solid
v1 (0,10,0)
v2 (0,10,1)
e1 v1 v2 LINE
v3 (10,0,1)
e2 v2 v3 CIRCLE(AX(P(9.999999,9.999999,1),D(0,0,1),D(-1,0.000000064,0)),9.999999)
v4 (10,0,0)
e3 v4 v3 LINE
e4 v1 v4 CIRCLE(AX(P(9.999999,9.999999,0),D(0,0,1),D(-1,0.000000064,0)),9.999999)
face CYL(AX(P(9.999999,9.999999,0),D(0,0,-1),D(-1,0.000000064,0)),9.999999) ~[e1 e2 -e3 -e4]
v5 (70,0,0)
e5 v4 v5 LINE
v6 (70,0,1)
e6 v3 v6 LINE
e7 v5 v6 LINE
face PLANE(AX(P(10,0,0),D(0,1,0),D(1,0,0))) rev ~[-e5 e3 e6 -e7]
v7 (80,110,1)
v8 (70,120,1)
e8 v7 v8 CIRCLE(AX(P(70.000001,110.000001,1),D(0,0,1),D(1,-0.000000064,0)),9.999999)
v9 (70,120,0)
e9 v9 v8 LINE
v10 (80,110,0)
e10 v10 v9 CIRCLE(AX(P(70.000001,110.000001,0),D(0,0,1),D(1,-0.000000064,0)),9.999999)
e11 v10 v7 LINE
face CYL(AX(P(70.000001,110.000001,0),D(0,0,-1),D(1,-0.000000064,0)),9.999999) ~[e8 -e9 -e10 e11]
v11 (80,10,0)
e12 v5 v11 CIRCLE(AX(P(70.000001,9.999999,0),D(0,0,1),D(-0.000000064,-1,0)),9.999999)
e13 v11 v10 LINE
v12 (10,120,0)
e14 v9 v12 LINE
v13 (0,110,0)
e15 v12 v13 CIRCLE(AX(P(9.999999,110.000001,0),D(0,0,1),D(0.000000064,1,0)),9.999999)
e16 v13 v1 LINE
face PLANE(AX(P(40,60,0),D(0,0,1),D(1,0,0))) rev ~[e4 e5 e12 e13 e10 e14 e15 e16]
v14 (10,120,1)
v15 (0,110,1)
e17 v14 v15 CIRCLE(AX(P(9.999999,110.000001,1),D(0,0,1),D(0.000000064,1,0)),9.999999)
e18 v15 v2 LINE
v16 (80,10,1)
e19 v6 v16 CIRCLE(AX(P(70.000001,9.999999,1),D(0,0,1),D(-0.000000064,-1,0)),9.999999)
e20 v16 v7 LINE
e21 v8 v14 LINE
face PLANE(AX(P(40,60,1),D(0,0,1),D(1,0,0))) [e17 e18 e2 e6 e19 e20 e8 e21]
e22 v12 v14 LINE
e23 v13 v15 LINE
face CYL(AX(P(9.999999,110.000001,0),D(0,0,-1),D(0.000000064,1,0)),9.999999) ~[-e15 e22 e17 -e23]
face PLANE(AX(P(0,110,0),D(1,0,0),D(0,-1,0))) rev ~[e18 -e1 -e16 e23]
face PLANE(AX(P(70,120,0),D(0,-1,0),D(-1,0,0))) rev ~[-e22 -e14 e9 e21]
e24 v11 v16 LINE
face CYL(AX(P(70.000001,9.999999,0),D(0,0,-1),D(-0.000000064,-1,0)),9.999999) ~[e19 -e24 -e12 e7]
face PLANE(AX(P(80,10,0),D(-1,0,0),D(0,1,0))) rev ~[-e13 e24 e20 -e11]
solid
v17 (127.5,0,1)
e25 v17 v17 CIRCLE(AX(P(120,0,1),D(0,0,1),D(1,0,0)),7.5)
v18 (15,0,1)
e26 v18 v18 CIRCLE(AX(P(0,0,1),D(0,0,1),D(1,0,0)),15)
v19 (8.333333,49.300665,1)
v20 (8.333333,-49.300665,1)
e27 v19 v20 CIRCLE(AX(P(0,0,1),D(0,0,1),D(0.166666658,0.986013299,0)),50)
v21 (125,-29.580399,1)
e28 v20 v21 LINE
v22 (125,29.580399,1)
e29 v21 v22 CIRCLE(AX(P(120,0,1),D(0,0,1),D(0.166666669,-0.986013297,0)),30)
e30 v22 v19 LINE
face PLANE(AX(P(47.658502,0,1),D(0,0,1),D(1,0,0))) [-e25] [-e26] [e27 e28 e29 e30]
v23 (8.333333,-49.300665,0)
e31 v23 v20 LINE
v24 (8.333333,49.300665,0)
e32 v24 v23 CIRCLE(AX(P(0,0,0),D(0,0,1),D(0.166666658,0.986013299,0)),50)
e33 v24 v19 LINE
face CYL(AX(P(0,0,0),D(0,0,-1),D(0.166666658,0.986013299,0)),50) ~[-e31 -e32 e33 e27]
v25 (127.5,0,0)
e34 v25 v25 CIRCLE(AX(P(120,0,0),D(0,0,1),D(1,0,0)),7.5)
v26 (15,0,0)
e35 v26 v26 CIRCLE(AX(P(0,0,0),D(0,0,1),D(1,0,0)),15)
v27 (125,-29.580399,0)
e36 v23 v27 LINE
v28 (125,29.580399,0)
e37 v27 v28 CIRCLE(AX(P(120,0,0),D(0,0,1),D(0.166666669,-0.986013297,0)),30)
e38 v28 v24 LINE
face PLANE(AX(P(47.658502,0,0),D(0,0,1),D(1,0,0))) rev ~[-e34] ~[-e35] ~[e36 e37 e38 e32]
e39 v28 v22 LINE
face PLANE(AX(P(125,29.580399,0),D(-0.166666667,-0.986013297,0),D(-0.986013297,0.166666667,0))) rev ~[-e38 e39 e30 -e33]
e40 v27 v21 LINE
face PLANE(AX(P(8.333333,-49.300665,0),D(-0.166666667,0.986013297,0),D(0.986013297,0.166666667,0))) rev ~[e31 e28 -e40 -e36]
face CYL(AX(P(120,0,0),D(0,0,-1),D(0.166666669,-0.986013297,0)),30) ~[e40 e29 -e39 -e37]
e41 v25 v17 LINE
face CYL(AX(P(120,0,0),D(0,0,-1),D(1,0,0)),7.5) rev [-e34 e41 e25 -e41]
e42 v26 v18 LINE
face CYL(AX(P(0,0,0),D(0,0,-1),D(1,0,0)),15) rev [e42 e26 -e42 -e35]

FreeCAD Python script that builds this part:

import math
import FreeCAD as App
import Part
import Sketcher

doc = App.newDocument("Part")
params = doc.addObject("Spreadsheet::Sheet", "Params")
for row, (alias, value) in enumerate([
    ("sketch1_radius", "9.999999 mm"),
    ("sketch1_width", "60 mm"),
    ("sketch1_height", "100 mm"),
    ("pad1_length", "1 mm"),
    ("sketch2_diameter", "30 mm"),
    ("sketch2_diameter2", "15 mm"),
    ("sketch2_radius", "50 mm"),
    ("sketch2_radius2", "30 mm"),
    ("pad2_length", "1 mm"),
], start=1):
    params.set(f"A{row}", alias)
    params.set(f"B{row}", "=" + value)
    params.setAlias(f"B{row}", alias)

body = doc.addObject("PartDesign::Body", "Body")

# Sketch on XY plane
sketch1 = body.newObject("Sketcher::SketchObject", "Sketch")
sketch1.AttachmentSupport = (doc.getObject("XY_Plane"), [""])
sketch1.MapMode = "FlatFace"
sketch1.addGeometry([
    Part.ArcOfCircle(Part.Circle(App.Vector(9.999999, 9.999999, 0), App.Vector(0, 0, 1), 9.999999), math.radians(179.999996), math.radians(270.000004)),  # 0
    Part.LineSegment(App.Vector(10, 0, 0), App.Vector(70, 0, 0)),  # 1
    Part.ArcOfCircle(Part.Circle(App.Vector(70.000001, 9.999999, 0), App.Vector(0, 0, 1), 9.999999), math.radians(-90.000004), math.radians(0.000004)),  # 2
    Part.LineSegment(App.Vector(80, 10, 0), App.Vector(80, 110, 0)),  # 3
    Part.ArcOfCircle(Part.Circle(App.Vector(70.000001, 110.000001, 0), App.Vector(0, 0, 1), 9.999999), math.radians(-0.000004), math.radians(90.000004)),  # 4
    Part.LineSegment(App.Vector(70, 120, 0), App.Vector(10, 120, 0)),  # 5
    Part.ArcOfCircle(Part.Circle(App.Vector(9.999999, 110.000001, 0), App.Vector(0, 0, 1), 9.999999), math.radians(89.999996), math.radians(180.000004)),  # 6
    Part.LineSegment(App.Vector(0, 110, 0), App.Vector(0, 10, 0)),  # 7
], False)
sketch1.addConstraint([
    Sketcher.Constraint("Tangent", 0, 2, 1, 1),
    Sketcher.Constraint("Tangent", 1, 2, 2, 1),
    Sketcher.Constraint("Tangent", 2, 2, 3, 1),
    Sketcher.Constraint("Tangent", 3, 2, 4, 1),
    Sketcher.Constraint("Tangent", 4, 2, 5, 1),
    Sketcher.Constraint("Tangent", 5, 2, 6, 1),
    Sketcher.Constraint("Tangent", 6, 2, 7, 1),
    Sketcher.Constraint("Tangent", 7, 2, 0, 1),
    Sketcher.Constraint("Horizontal", 1),
    Sketcher.Constraint("Vertical", 3),
    Sketcher.Constraint("Horizontal", 5),
    Sketcher.Constraint("Vertical", 7),
    Sketcher.Constraint("Equal", 0, 2),
    Sketcher.Constraint("Equal", 2, 4),
    Sketcher.Constraint("Equal", 4, 6),
    Sketcher.Constraint("PointOnObject", 0, 2, -1),
    Sketcher.Constraint("PointOnObject", 6, 2, -2),
    Sketcher.Constraint("Radius", 0, 9.999999),
    Sketcher.Constraint("DistanceX", 1, 1, 1, 2, 60.0),
    Sketcher.Constraint("DistanceY", 3, 1, 3, 2, 100.0),
])
sketch1.setExpression("Constraints[17]", "Params.sketch1_radius")
sketch1.setExpression("Constraints[18]", "Params.sketch1_width")
sketch1.setExpression("Constraints[19]", "Params.sketch1_height")
pad1 = body.newObject("PartDesign::Pad", "Pad")
pad1.Profile = sketch1
pad1.setExpression("Length", "Params.pad1_length")
body2 = doc.addObject("PartDesign::Body", "Body001")

# Sketch on XY plane
sketch2 = body2.newObject("Sketcher::SketchObject", "Sketch001")
sketch2.AttachmentSupport = (doc.getObject("XY_Plane001"), [""])
sketch2.MapMode = "FlatFace"
sketch2.addGeometry([
    Part.LineSegment(App.Vector(125, 29.580399, 0), App.Vector(8.333333, 49.300665, 0)),  # 0
    Part.ArcOfCircle(Part.Circle(App.Vector(0, 0, 0), App.Vector(0, 0, 1), 50), math.radians(80.405932), math.radians(279.594068)),  # 1
    Part.LineSegment(App.Vector(8.333333, -49.300665, 0), App.Vector(125, -29.580399, 0)),  # 2
    Part.ArcOfCircle(Part.Circle(App.Vector(120, 0, 0), App.Vector(0, 0, 1), 30), math.radians(-80.405932), math.radians(80.405932)),  # 3
    Part.Circle(App.Vector(0, 0, 0), App.Vector(0, 0, 1), 15),  # 4
    Part.Circle(App.Vector(120, 0, 0), App.Vector(0, 0, 1), 7.5),  # 5
], False)
sketch2.addConstraint([
    Sketcher.Constraint("Tangent", 0, 2, 1, 1),
    Sketcher.Constraint("Tangent", 1, 2, 2, 1),
    Sketcher.Constraint("Tangent", 2, 2, 3, 1),
    Sketcher.Constraint("Tangent", 3, 2, 0, 1),
    Sketcher.Constraint("Coincident", 1, 3, -1, 1),
    Sketcher.Constraint("Coincident", 4, 3, -1, 1),
    Sketcher.Constraint("Coincident", 5, 3, 3, 3),
    Sketcher.Constraint("PointOnObject", 3, 3, -1),
    Sketcher.Constraint("Diameter", 4, 30.0),
    Sketcher.Constraint("Diameter", 5, 15.0),
    Sketcher.Constraint("Radius", 1, 50.0),
    Sketcher.Constraint("Radius", 3, 30.0),
    Sketcher.Constraint("DistanceX", -1, 1, 3, 3, 120.0),
])
sketch2.setExpression("Constraints[8]", "Params.sketch2_diameter")
sketch2.setExpression("Constraints[9]", "Params.sketch2_diameter2")
sketch2.setExpression("Constraints[10]", "Params.sketch2_radius")
sketch2.setExpression("Constraints[11]", "Params.sketch2_radius2")
pad2 = body2.newObject("PartDesign::Pad", "Pad001")
pad2.Profile = sketch2
pad2.setExpression("Length", "Params.pad2_length")

doc.recompute()
